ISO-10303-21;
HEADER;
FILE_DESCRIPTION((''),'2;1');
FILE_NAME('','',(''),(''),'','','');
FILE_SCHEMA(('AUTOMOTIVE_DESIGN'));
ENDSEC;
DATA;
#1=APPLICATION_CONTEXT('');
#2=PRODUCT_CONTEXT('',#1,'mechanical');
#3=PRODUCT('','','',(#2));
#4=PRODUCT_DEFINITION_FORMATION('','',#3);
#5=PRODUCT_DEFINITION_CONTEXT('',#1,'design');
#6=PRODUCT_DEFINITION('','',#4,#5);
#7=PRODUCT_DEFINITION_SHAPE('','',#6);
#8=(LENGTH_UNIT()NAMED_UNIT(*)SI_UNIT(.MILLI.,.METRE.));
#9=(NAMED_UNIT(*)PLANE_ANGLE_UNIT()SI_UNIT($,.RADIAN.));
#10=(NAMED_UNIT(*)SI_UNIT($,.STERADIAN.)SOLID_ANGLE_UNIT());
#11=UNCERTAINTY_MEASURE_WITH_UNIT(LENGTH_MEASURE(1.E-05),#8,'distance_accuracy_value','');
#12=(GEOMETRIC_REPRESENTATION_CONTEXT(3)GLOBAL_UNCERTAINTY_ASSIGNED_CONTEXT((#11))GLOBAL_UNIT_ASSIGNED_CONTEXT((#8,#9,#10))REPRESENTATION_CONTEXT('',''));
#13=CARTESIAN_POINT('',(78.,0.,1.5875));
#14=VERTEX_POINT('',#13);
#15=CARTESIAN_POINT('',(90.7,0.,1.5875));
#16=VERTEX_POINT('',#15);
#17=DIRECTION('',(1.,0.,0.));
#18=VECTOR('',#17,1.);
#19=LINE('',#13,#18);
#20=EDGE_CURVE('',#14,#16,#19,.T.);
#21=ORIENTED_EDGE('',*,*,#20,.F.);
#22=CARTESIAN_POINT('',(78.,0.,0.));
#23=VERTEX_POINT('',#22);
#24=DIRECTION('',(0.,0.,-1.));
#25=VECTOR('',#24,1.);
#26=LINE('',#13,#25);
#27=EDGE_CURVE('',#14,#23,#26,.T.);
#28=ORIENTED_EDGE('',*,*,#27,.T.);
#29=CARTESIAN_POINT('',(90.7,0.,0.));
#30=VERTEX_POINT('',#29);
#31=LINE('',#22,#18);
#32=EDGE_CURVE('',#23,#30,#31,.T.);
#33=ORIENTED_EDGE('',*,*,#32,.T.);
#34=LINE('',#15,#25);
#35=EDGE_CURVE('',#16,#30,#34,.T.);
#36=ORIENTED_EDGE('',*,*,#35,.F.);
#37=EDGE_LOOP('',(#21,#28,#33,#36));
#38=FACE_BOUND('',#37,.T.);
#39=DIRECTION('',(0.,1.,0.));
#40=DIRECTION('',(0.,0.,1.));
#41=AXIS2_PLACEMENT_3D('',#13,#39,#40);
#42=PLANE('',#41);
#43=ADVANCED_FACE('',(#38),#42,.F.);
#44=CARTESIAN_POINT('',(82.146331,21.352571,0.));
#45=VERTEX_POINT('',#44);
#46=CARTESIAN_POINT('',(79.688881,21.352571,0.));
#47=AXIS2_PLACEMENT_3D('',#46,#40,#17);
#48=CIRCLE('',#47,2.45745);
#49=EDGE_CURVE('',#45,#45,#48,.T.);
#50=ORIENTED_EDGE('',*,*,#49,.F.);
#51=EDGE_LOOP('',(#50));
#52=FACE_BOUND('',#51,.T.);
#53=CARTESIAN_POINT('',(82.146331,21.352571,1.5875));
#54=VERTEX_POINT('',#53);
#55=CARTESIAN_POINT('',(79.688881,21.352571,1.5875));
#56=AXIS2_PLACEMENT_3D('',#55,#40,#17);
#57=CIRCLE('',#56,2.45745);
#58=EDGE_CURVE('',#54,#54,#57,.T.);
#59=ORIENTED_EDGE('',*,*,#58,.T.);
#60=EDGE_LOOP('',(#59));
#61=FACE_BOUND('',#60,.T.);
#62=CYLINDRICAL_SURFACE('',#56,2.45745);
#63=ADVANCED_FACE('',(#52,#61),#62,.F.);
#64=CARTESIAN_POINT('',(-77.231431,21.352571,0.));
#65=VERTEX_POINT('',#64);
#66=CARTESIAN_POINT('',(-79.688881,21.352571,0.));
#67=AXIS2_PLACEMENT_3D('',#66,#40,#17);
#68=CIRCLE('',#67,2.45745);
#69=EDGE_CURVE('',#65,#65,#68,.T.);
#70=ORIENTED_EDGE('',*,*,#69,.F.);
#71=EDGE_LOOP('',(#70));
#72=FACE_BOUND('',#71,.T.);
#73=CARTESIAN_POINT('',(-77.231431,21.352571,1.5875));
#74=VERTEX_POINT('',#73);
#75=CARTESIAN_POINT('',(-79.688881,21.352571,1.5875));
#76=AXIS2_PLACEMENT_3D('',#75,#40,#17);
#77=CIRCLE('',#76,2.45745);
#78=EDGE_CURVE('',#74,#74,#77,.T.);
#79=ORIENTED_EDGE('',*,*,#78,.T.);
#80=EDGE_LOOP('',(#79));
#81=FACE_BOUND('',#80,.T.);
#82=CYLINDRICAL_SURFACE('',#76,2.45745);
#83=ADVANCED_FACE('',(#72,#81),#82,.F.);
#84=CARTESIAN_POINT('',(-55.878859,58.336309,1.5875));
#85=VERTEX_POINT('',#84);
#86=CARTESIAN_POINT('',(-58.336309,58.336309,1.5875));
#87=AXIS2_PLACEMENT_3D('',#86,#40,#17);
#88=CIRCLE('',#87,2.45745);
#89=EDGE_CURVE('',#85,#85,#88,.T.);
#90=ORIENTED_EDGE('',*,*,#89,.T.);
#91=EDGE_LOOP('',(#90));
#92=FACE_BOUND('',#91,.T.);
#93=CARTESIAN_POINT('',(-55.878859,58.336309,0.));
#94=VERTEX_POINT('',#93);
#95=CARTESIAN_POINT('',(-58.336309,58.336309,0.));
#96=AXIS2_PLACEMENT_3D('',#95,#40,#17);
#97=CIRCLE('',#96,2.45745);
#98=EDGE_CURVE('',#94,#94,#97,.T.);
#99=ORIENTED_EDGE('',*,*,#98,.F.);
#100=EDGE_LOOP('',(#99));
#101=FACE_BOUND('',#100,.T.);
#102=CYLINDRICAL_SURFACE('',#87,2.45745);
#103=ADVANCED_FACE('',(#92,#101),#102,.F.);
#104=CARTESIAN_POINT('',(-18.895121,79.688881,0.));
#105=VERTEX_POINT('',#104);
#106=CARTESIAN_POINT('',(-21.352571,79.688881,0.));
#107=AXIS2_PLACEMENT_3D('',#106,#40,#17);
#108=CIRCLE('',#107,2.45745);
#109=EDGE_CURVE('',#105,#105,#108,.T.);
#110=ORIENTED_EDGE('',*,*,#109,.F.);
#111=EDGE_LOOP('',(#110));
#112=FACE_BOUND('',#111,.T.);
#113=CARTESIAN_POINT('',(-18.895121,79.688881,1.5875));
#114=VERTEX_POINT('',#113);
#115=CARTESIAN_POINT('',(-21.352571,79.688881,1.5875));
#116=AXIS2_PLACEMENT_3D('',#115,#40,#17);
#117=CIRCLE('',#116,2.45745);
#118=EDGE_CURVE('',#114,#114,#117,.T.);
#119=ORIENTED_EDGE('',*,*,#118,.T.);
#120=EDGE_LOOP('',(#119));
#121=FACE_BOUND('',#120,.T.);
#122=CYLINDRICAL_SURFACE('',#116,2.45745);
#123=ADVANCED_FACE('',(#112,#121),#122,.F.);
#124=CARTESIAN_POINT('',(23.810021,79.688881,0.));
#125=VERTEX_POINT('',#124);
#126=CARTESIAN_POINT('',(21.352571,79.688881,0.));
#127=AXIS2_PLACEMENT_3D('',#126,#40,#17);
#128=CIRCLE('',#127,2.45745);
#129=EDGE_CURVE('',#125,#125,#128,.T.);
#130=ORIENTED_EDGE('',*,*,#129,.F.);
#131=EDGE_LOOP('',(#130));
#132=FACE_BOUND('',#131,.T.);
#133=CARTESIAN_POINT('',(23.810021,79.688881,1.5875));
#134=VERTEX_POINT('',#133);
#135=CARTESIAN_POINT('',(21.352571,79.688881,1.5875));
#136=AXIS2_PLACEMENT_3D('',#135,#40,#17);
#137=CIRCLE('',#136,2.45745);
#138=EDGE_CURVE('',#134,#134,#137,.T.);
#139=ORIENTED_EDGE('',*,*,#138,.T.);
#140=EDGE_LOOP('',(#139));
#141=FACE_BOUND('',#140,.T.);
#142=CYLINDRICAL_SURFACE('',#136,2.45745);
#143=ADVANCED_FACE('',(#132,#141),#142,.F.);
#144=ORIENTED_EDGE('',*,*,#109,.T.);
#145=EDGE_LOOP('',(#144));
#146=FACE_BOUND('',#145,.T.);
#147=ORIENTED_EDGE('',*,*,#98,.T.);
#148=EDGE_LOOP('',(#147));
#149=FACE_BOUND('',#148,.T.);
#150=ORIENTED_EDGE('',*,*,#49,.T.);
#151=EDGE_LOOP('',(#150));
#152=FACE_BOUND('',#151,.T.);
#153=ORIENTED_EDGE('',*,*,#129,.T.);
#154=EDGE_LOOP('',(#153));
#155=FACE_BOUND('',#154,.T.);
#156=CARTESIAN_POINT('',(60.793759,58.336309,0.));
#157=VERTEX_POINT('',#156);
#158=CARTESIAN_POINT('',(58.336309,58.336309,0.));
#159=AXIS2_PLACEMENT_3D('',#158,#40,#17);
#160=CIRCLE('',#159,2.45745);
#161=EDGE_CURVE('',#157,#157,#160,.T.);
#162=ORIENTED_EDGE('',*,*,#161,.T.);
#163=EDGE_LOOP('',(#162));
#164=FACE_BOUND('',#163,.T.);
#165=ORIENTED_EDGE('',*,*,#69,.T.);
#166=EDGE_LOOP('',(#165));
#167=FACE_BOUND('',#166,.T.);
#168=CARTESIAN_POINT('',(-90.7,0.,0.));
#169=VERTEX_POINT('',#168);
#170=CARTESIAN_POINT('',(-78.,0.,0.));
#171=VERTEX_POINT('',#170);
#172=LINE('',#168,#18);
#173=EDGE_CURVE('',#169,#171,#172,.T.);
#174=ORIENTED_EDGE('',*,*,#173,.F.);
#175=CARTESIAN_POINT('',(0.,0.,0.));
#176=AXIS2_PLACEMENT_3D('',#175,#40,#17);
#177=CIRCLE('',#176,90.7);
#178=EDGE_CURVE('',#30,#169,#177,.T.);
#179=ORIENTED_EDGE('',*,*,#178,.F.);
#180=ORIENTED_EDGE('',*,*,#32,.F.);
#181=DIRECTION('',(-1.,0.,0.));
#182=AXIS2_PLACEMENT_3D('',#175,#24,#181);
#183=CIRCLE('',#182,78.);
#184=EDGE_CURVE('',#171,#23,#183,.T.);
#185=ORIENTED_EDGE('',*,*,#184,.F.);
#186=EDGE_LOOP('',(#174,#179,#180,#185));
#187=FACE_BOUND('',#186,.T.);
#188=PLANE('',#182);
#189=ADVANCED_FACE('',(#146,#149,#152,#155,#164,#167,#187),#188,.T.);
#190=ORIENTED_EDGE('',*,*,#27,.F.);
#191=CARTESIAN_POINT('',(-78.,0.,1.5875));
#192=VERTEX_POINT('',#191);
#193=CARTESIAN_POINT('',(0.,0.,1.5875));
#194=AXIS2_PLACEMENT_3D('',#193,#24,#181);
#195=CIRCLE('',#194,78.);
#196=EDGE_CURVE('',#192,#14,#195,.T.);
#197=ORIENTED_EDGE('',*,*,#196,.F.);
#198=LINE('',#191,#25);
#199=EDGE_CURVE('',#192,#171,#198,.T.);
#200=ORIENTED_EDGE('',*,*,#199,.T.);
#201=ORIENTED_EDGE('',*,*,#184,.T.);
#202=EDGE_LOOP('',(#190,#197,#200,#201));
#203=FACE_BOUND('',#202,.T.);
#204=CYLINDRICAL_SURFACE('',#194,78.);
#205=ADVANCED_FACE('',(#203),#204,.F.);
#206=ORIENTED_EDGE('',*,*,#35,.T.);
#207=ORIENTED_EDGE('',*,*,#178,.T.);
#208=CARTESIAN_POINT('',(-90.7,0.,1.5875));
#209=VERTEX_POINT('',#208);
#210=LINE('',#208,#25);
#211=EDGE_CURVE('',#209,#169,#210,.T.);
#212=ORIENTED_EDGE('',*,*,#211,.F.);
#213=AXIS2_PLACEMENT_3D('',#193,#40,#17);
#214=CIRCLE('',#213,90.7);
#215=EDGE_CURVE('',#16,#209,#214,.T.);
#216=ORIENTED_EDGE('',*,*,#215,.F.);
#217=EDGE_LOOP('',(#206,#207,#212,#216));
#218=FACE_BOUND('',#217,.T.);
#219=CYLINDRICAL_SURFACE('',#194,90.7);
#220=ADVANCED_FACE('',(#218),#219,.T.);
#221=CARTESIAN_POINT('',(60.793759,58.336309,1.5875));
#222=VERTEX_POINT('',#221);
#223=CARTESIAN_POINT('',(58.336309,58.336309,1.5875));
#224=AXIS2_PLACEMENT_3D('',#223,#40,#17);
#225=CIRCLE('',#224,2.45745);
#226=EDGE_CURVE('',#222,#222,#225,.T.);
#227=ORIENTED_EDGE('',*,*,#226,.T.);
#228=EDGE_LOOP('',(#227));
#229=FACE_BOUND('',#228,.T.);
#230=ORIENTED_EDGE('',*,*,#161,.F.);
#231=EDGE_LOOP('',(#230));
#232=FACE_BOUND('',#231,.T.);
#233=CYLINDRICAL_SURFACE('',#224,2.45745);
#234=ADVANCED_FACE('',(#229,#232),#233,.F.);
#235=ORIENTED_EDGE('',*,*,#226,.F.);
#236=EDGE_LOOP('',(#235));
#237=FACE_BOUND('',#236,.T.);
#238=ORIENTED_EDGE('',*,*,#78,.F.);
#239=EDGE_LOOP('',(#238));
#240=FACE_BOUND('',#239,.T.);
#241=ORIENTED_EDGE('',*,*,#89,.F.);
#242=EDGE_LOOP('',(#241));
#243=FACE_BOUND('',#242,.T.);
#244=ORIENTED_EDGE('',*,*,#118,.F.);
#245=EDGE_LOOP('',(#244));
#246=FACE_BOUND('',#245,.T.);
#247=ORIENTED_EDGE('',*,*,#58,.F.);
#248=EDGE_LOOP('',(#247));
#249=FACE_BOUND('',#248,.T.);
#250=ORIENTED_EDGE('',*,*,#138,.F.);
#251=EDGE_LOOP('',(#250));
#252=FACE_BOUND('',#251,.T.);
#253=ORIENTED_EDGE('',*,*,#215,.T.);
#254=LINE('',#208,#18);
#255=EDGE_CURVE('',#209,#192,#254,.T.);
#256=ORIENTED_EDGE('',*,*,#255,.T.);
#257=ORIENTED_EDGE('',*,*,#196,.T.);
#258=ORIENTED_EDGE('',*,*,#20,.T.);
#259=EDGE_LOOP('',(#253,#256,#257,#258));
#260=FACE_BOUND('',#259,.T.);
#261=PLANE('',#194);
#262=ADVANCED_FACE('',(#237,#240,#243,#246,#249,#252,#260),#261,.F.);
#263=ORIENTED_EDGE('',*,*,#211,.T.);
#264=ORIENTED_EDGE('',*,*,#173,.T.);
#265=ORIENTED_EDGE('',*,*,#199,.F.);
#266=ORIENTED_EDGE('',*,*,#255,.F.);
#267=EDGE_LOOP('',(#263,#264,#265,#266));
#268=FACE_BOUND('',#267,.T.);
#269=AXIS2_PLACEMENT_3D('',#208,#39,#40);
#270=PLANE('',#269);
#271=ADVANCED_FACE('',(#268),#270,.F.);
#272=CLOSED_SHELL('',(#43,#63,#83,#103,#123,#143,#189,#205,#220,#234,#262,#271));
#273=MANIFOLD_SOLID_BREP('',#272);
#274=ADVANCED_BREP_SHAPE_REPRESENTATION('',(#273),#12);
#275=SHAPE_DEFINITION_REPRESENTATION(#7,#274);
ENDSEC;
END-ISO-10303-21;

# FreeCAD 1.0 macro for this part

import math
import FreeCAD as App
import Part
import Sketcher
Q = App.Units.Quantity

doc = App.newDocument("Part")
params = doc.addObject("Spreadsheet::Sheet", "Params")
for row, (alias, value) in enumerate([
    ("sketch1_radius", "78 mm"),
    ("sketch1_radius2", "90.7 mm"),
    ("pad1_length", "1.5875 mm"),
    ("hole_diameter", "4.9149 mm"),
], start=1):
    params.set(f"A{row}", alias)
    params.set(f"B{row}", "=" + value)
    params.setAlias(f"B{row}", alias)

body = doc.addObject("PartDesign::Body", "Body")

# Sketch on XY plane
sketch1 = body.newObject("Sketcher::SketchObject", "Sketch")
sketch1.AttachmentSupport = (doc.getObject("XY_Plane"), [""])
sketch1.MapMode = "FlatFace"
sketch1.addGeometry([
    Part.LineSegment(App.Vector(-90.7, 0, 0), App.Vector(-78, 0, 0)),
    Part.ArcOfCircle(Part.Circle(App.Vector(0, 0, 0), App.Vector(0, 0, 1), 78), math.radians(0), math.radians(180)),
    Part.LineSegment(App.Vector(78, 0, 0), App.Vector(90.7, 0, 0)),
    Part.ArcOfCircle(Part.Circle(App.Vector(0, 0, 0), App.Vector(0, 0, 1), 90.7), math.radians(0), math.radians(180)),
], False)
sketch1.addConstraint([
    Sketcher.Constraint("Coincident", 0, 2, 1, 2),
    Sketcher.Constraint("Coincident", 1, 1, 2, 1),
    Sketcher.Constraint("Coincident", 2, 2, 3, 1),
    Sketcher.Constraint("Coincident", 3, 2, 0, 1),
    Sketcher.Constraint("Horizontal", 0),
    Sketcher.Constraint("Horizontal", 2),
    Sketcher.Constraint("Coincident", 1, 3, -1, 1),
    Sketcher.Constraint("Coincident", 3, 3, -1, 1),
    Sketcher.Constraint("PointOnObject", 0, 2, -1),
    Sketcher.Constraint("PointOnObject", 1, 1, -1),
    Sketcher.Constraint("Radius", 1, Q("78 mm")),
    Sketcher.Constraint("Radius", 3, Q("90.7 mm")),
])
sketch1.setExpression("Constraints[10]", "Params.sketch1_radius")
sketch1.setExpression("Constraints[11]", "Params.sketch1_radius2")
pad1 = body.newObject("PartDesign::Pad", "Pad")
pad1.Profile = sketch1
pad1.setExpression("Length", "Params.pad1_length")

# Sketch on XY plane
sketch2 = body.newObject("Sketcher::SketchObject", "Sketch001")
sketch2.AttachmentSupport = (doc.getObject("XY_Plane"), [""])
sketch2.MapMode = "FlatFace"
sketch2.AttachmentOffset = App.Placement(App.Vector(0, 0, 1.5875), App.Rotation())
sketch2.addGeometry(Part.Circle(App.Vector(79.688881, 21.352571, 0), App.Vector(0, 0, 1), 2.45745), False)
sketch2.addConstraint([
    Sketcher.Constraint("Diameter", 0, Q("4.9149 mm")),
    Sketcher.Constraint("DistanceX", -1, 1, 0, 3, Q("79.688881 mm")),
    Sketcher.Constraint("DistanceY", -1, 1, 0, 3, Q("21.352571 mm")),
])
doc.recompute()
hole = body.newObject("PartDesign::Hole", "Hole")
hole.Profile = sketch2
hole.ThreadType = "None"
hole.setExpression("Diameter", "Params.hole_diameter")
hole.DepthType = "ThroughAll"
doc.recompute()

polarpattern = body.newObject("PartDesign::PolarPattern", "PolarPattern")
polarpattern.Originals = [hole]
polarpattern.Axis = (doc.getObject("Z_Axis"), [""])
polarpattern.Angle = 150
polarpattern.Occurrences = 6
body.Tip = polarpattern

doc.recompute()
